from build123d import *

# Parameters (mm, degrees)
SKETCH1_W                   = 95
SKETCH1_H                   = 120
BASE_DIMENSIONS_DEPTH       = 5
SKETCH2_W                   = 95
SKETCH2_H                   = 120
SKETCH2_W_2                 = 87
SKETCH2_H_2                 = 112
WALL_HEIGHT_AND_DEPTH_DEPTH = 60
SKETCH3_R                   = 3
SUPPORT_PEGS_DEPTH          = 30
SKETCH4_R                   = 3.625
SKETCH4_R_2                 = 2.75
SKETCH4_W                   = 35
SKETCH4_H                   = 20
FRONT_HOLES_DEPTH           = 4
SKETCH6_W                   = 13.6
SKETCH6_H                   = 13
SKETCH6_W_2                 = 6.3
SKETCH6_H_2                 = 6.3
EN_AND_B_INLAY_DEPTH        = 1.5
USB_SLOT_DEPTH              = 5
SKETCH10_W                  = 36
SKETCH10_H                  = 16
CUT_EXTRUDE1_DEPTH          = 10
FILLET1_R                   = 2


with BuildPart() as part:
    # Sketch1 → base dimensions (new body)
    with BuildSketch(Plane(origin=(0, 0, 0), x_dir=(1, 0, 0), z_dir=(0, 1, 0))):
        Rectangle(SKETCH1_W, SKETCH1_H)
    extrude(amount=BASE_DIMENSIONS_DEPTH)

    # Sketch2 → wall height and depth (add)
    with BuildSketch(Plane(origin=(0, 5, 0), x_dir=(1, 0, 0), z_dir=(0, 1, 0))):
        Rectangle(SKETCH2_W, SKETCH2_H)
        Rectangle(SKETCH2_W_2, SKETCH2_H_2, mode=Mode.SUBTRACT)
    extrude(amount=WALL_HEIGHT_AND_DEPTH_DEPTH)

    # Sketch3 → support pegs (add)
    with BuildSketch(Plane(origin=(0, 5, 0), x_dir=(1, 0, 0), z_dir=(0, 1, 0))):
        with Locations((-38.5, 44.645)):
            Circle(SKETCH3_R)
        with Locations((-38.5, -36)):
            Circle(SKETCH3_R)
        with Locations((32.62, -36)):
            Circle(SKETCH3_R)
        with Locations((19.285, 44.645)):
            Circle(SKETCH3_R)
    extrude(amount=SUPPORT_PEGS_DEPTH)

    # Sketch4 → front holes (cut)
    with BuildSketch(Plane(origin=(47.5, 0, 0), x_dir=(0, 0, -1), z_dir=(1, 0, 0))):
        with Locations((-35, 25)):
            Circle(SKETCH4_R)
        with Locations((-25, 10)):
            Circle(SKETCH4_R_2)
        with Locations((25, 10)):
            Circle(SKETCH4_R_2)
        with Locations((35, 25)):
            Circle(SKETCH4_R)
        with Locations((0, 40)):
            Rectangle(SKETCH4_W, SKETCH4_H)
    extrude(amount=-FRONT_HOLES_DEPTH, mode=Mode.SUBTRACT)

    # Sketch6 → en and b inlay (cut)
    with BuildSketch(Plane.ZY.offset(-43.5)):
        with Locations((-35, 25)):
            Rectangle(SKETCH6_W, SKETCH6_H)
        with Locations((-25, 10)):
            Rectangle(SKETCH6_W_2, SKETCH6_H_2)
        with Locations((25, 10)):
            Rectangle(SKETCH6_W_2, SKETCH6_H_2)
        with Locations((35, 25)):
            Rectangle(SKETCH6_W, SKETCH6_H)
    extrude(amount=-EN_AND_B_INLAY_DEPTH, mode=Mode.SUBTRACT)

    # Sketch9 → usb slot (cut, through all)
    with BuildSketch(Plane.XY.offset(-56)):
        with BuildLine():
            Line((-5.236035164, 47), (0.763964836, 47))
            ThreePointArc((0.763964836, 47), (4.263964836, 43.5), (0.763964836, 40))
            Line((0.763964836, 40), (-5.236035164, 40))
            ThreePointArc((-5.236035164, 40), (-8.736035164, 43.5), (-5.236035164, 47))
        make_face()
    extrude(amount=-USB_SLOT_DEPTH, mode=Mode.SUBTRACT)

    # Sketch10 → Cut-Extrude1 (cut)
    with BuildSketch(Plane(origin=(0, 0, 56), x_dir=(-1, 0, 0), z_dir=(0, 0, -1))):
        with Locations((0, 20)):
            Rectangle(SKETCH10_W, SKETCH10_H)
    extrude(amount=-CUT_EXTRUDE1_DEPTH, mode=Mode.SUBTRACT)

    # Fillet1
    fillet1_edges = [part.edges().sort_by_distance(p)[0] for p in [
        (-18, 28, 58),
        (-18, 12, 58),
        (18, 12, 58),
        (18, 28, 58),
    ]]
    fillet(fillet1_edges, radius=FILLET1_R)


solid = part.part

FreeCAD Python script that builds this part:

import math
import FreeCAD as App
import Part
import Sketcher


def edges_at(feature, points):
    """Names of the edges that pass closest to the given points."""
    edges = feature.Shape.Edges
    near = lambda p: min(range(len(edges)), key=lambda i: edges[i].distToShape(Part.Vertex(*p))[0])
    return sorted({f"Edge{near(p) + 1}" for p in points})


def add_polygon(sketch, points):
    """Adds a closed chain of lines whose ends are joined by coincident constraints."""
    first, n = sketch.GeometryCount, len(points)
    for a, b in zip(points, points[1:] + points[:1]):
        sketch.addGeometry(Part.LineSegment(App.Vector(*a, 0), App.Vector(*b, 0)), False)
    for i in range(n):
        sketch.addConstraint(Sketcher.Constraint("Coincident", first + i, 2, first + (i + 1) % n, 1))

doc = App.newDocument("Part")
params = doc.addObject("Spreadsheet::Sheet", "Params")
for row, (alias, value) in enumerate([
    ("sketch1_width", "95 mm"),
    ("sketch1_height", "120 mm"),
    ("pad1_length", "5 mm"),
    ("sketch2_width", "95 mm"),
    ("sketch2_width2", "87 mm"),
    ("sketch2_height", "120 mm"),
    ("sketch2_height2", "112 mm"),
    ("pad2_length", "60 mm"),
    ("sketch3_diameter", "6 mm"),
    ("pad3_length", "30 mm"),
    ("sketch4_diameter", "5.5 mm"),
    ("sketch4_diameter2", "7.25 mm"),
    ("sketch4_width", "20 mm"),
    ("sketch4_height", "35 mm"),
    ("pocket1_length", "4 mm"),
    ("sketch5_width", "13 mm"),
    ("sketch5_width2", "6.3 mm"),
    ("sketch5_height", "13.6 mm"),
    ("pocket2_length", "1.5 mm"),
    ("sketch6_radius", "3.5 mm"),
    ("sketch6_width", "6 mm"),
    ("sketch7_width", "36 mm"),
    ("sketch7_height", "16 mm"),
    ("pocket4_length", "10 mm"),
    ("fillet_radius", "2 mm"),
], start=1):
    params.set(f"A{row}", alias)
    params.set(f"B{row}", "=" + value)
    params.setAlias(f"B{row}", alias)

body = doc.addObject("PartDesign::Body", "Body")

# Sketch on XZ plane
sketch1 = body.newObject("Sketcher::SketchObject", "Sketch")
sketch1.AttachmentSupport = (doc.getObject("XZ_Plane"), [""])
sketch1.MapMode = "FlatFace"
add_polygon(sketch1, [(-48, -60), (-48, 60), (48, 60), (48, -60)])  # lines 0-3
sketch1.addConstraint(Sketcher.Constraint("Vertical", 0))
sketch1.addConstraint(Sketcher.Constraint("Horizontal", 1))
sketch1.addConstraint(Sketcher.Constraint("Vertical", 2))
sketch1.addConstraint(Sketcher.Constraint("Horizontal", 3))
sketch1.addConstraint(Sketcher.Constraint("Symmetric", 0, 2, 2, 2, -1, 1))
sketch1.addConstraint(Sketcher.Constraint("DistanceX", 1, 1, 1, 2, 95.0))
sketch1.addConstraint(Sketcher.Constraint("DistanceY", 0, 1, 0, 2, 120.0))
sketch1.setExpression("Constraints[9]", "Params.sketch1_width")
sketch1.setExpression("Constraints[10]", "Params.sketch1_height")
pad1 = body.newObject("PartDesign::Pad", "Pad")
pad1.Profile = sketch1
pad1.setExpression("Length", "Params.pad1_length")
pad1.Reversed = True

# Sketch on XZ plane
sketch2 = body.newObject("Sketcher::SketchObject", "Sketch001")
sketch2.AttachmentSupport = (doc.getObject("XZ_Plane"), [""])
sketch2.MapMode = "FlatFace"
sketch2.AttachmentOffset = App.Placement(App.Vector(0, 0, -5), App.Rotation())
add_polygon(sketch2, [(-48, -60), (-48, 60), (48, 60), (48, -60)])  # lines 0-3
add_polygon(sketch2, [(44, 56), (-44, 56), (-44, -56), (44, -56)])  # lines 4-7
sketch2.addConstraint(Sketcher.Constraint("Vertical", 0))
sketch2.addConstraint(Sketcher.Constraint("Horizontal", 1))
sketch2.addConstraint(Sketcher.Constraint("Vertical", 2))
sketch2.addConstraint(Sketcher.Constraint("Horizontal", 3))
sketch2.addConstraint(Sketcher.Constraint("Horizontal", 4))
sketch2.addConstraint(Sketcher.Constraint("Vertical", 5))
sketch2.addConstraint(Sketcher.Constraint("Horizontal", 6))
sketch2.addConstraint(Sketcher.Constraint("Vertical", 7))
sketch2.addConstraint(Sketcher.Constraint("Symmetric", 0, 2, 2, 2, -1, 1))
sketch2.addConstraint(Sketcher.Constraint("Symmetric", 4, 2, 6, 2, -1, 1))
sketch2.addConstraint(Sketcher.Constraint("DistanceX", 1, 1, 1, 2, 95.0))
sketch2.addConstraint(Sketcher.Constraint("DistanceX", 4, 2, 4, 1, 87.0))
sketch2.addConstraint(Sketcher.Constraint("DistanceY", 0, 1, 0, 2, 120.0))
sketch2.addConstraint(Sketcher.Constraint("DistanceY", 5, 2, 5, 1, 112.0))
sketch2.setExpression("Constraints[18]", "Params.sketch2_width")
sketch2.setExpression("Constraints[19]", "Params.sketch2_width2")
sketch2.setExpression("Constraints[20]", "Params.sketch2_height")
sketch2.setExpression("Constraints[21]", "Params.sketch2_height2")
pad2 = body.newObject("PartDesign::Pad", "Pad001")
pad2.Profile = sketch2
pad2.setExpression("Length", "Params.pad2_length")
pad2.Reversed = True

# Sketch on XZ plane
sketch3 = body.newObject("Sketcher::SketchObject", "Sketch002")
sketch3.AttachmentSupport = (doc.getObject("XZ_Plane"), [""])
sketch3.MapMode = "FlatFace"
sketch3.AttachmentOffset = App.Placement(App.Vector(0, 0, -5), App.Rotation())
sketch3.addGeometry(Part.Circle(App.Vector(-38.5, -44.6, 0), App.Vector(0, 0, 1), 3), False)
sketch3.addGeometry(Part.Circle(App.Vector(-38.5, 36, 0), App.Vector(0, 0, 1), 3), False)
sketch3.addGeometry(Part.Circle(App.Vector(32.6, 36, 0), App.Vector(0, 0, 1), 3), False)
sketch3.addGeometry(Part.Circle(App.Vector(19.3, -44.6, 0), App.Vector(0, 0, 1), 3), False)
sketch3.addConstraint(Sketcher.Constraint("Equal", 0, 1))
sketch3.addConstraint(Sketcher.Constraint("Equal", 1, 2))
sketch3.addConstraint(Sketcher.Constraint("Equal", 2, 3))
sketch3.addConstraint(Sketcher.Constraint("Horizontal", 1, 3, 2, 3))
sketch3.addConstraint(Sketcher.Constraint("Horizontal", 0, 3, 3, 3))
sketch3.addConstraint(Sketcher.Constraint("Vertical", 0, 3, 1, 3))
sketch3.addConstraint(Sketcher.Constraint("Diameter", 0, 6.0))
sketch3.addConstraint(Sketcher.Constraint("DistanceY", -1, 1, 1, 3, 36.0))
sketch3.addConstraint(Sketcher.Constraint("DistanceX", 0, 3, -1, 1, 38.5))
sketch3.addConstraint(Sketcher.Constraint("DistanceX", -1, 1, 2, 3, 32.62))
sketch3.addConstraint(Sketcher.Constraint("DistanceY", 0, 3, -1, 1, 44.645))
sketch3.addConstraint(Sketcher.Constraint("DistanceX", -1, 1, 3, 3, 19.285))
sketch3.setExpression("Constraints[6]", "Params.sketch3_diameter")
pad3 = body.newObject("PartDesign::Pad", "Pad002")
pad3.Profile = sketch3
pad3.setExpression("Length", "Params.pad3_length")
pad3.Reversed = True

# Sketch on YZ plane
sketch4 = body.newObject("Sketcher::SketchObject", "Sketch003")
sketch4.AttachmentSupport = (doc.getObject("YZ_Plane"), [""])
sketch4.MapMode = "FlatFace"
sketch4.AttachmentOffset = App.Placement(App.Vector(0, 0, 47.5), App.Rotation())
sketch4.addGeometry(Part.Circle(App.Vector(25, 35, 0), App.Vector(0, 0, 1), 3.6), False)  # 0
sketch4.addGeometry(Part.Circle(App.Vector(10, 25, 0), App.Vector(0, 0, 1), 2.8), False)  # 1
sketch4.addGeometry(Part.Circle(App.Vector(10, -25, 0), App.Vector(0, 0, 1), 2.8), False)  # 2
sketch4.addGeometry(Part.Circle(App.Vector(25, -35, 0), App.Vector(0, 0, 1), 3.6), False)  # 3
add_polygon(sketch4, [(50, 17.5), (30, 17.5), (30, -17.5), (50, -17.5)])  # lines 4-7
sketch4.addConstraint(Sketcher.Constraint("Horizontal", 4))
sketch4.addConstraint(Sketcher.Constraint("Vertical", 5))
sketch4.addConstraint(Sketcher.Constraint("Horizontal", 6))
sketch4.addConstraint(Sketcher.Constraint("Vertical", 7))
sketch4.addConstraint(Sketcher.Constraint("Equal", 1, 2))
sketch4.addConstraint(Sketcher.Constraint("Equal", 0, 3))
sketch4.addConstraint(Sketcher.Constraint("Symmetric", 1, 3, 2, 3, -1))
sketch4.addConstraint(Sketcher.Constraint("Symmetric", 0, 3, 3, 3, -1))
sketch4.addConstraint(Sketcher.Constraint("Diameter", 1, 5.5))
sketch4.addConstraint(Sketcher.Constraint("Diameter", 0, 7.25))
sketch4.addConstraint(Sketcher.Constraint("DistanceX", 4, 2, 4, 1, 20.0))
sketch4.addConstraint(Sketcher.Constraint("DistanceY", 5, 2, 5, 1, 35.0))
sketch4.addConstraint(Sketcher.Constraint("DistanceX", -1, 1, 0, 3, 25.0))
sketch4.addConstraint(Sketcher.Constraint("DistanceY", -1, 1, 0, 3, 35.0))
sketch4.addConstraint(Sketcher.Constraint("DistanceX", -1, 1, 1, 3, 10.0))
sketch4.addConstraint(Sketcher.Constraint("DistanceY", -1, 1, 1, 3, 25.0))
sketch4.addConstraint(Sketcher.Constraint("DistanceX", -1, 1, 4, 2, 30.0))
sketch4.addConstraint(Sketcher.Constraint("DistanceY", -1, 1, 4, 2, 17.5))
sketch4.setExpression("Constraints[12]", "Params.sketch4_diameter")
sketch4.setExpression("Constraints[13]", "Params.sketch4_diameter2")
sketch4.setExpression("Constraints[14]", "Params.sketch4_width")
sketch4.setExpression("Constraints[15]", "Params.sketch4_height")
pocket1 = body.newObject("PartDesign::Pocket", "Pocket")
pocket1.Profile = sketch4
pocket1.setExpression("Length", "Params.pocket1_length")

# Sketch on YZ plane
sketch5 = body.newObject("Sketcher::SketchObject", "Sketch004")
sketch5.AttachmentSupport = (doc.getObject("YZ_Plane"), [""])
sketch5.MapMode = "FlatFace"
sketch5.AttachmentOffset = App.Placement(App.Vector(0, 0, 43.5), App.Rotation())
add_polygon(sketch5, [(32, -42), (18, -42), (18, -28), (32, -28)])  # lines 0-3
add_polygon(sketch5, [(13, -28), (7, -28), (7, -22), (13, -22)])  # lines 4-7
add_polygon(sketch5, [(13, 22), (7, 22), (7, 28), (13, 28)])  # lines 8-11
add_polygon(sketch5, [(32, 28), (18, 28), (18, 42), (32, 42)])  # lines 12-15
sketch5.addConstraint(Sketcher.Constraint("Horizontal", 0))
sketch5.addConstraint(Sketcher.Constraint("Vertical", 1))
sketch5.addConstraint(Sketcher.Constraint("Horizontal", 2))
sketch5.addConstraint(Sketcher.Constraint("Vertical", 3))
sketch5.addConstraint(Sketcher.Constraint("Horizontal", 4))
sketch5.addConstraint(Sketcher.Constraint("Vertical", 5))
sketch5.addConstraint(Sketcher.Constraint("Horizontal", 6))
sketch5.addConstraint(Sketcher.Constraint("Vertical", 7))
sketch5.addConstraint(Sketcher.Constraint("Horizontal", 8))
sketch5.addConstraint(Sketcher.Constraint("Vertical", 9))
sketch5.addConstraint(Sketcher.Constraint("Horizontal", 10))
sketch5.addConstraint(Sketcher.Constraint("Vertical", 11))
sketch5.addConstraint(Sketcher.Constraint("Horizontal", 12))
sketch5.addConstraint(Sketcher.Constraint("Vertical", 13))
sketch5.addConstraint(Sketcher.Constraint("Horizontal", 14))
sketch5.addConstraint(Sketcher.Constraint("Vertical", 15))
sketch5.addConstraint(Sketcher.Constraint("Symmetric", 5, 2, 8, 2, -1))
sketch5.addConstraint(Sketcher.Constraint("Symmetric", 7, 2, 10, 2, -1))
sketch5.addConstraint(Sketcher.Constraint("Symmetric", 1, 2, 12, 2, -1))
sketch5.addConstraint(Sketcher.Constraint("Symmetric", 3, 2, 14, 2, -1))
sketch5.addConstraint(Sketcher.Constraint("Equal", 10, 5))
sketch5.addConstraint(Sketcher.Constraint("DistanceX", 0, 2, 0, 1, 13.0))
sketch5.addConstraint(Sketcher.Constraint("DistanceX", 4, 2, 4, 1, 6.3))
sketch5.addConstraint(Sketcher.Constraint("DistanceY", 1, 1, 1, 2, 13.6))
sketch5.addConstraint(Sketcher.Constraint("DistanceY", 4, 2, 8, 2, 50.0))
sketch5.addConstraint(Sketcher.Constraint("DistanceX", -1, 1, 0, 2, 18.5))
sketch5.addConstraint(Sketcher.Constraint("DistanceY", 0, 2, -1, 1, 41.8))
sketch5.addConstraint(Sketcher.Constraint("DistanceX", -1, 1, 4, 2, 6.85))
sketch5.setExpression("Constraints[37]", "Params.sketch5_width")
sketch5.setExpression("Constraints[38]", "Params.sketch5_width2")
sketch5.setExpression("Constraints[39]", "Params.sketch5_height")
pocket2 = body.newObject("PartDesign::Pocket", "Pocket001")
pocket2.Profile = sketch5
pocket2.setExpression("Length", "Params.pocket2_length")
pocket2.Reversed = True

# Sketch on XY plane
sketch6 = body.newObject("Sketcher::SketchObject", "Sketch005")
sketch6.AttachmentSupport = (doc.getObject("XY_Plane"), [""])
sketch6.MapMode = "FlatFace"
sketch6.AttachmentOffset = App.Placement(App.Vector(0, 0, -56), App.Rotation())
sketch6.addGeometry(Part.LineSegment(App.Vector(0.8, 47, 0), App.Vector(-5.2, 47, 0)), False)
sketch6.addGeometry(Part.ArcOfCircle(Part.Circle(App.Vector(-5.2, 43.5, 0), App.Vector(0, 0, 1), 3.5), math.radians(90), math.radians(270)), False)
sketch6.addGeometry(Part.LineSegment(App.Vector(-5.2, 40, 0), App.Vector(0.8, 40, 0)), False)
sketch6.addGeometry(Part.ArcOfCircle(Part.Circle(App.Vector(0.8, 43.5, 0), App.Vector(0, 0, 1), 3.5), math.radians(-90), math.radians(90)), False)
sketch6.addConstraint(Sketcher.Constraint("Tangent", 0, 2, 1, 1))
sketch6.addConstraint(Sketcher.Constraint("Tangent", 1, 2, 2, 1))
sketch6.addConstraint(Sketcher.Constraint("Tangent", 2, 2, 3, 1))
sketch6.addConstraint(Sketcher.Constraint("Tangent", 3, 2, 0, 1))
sketch6.addConstraint(Sketcher.Constraint("Horizontal", 0))
sketch6.addConstraint(Sketcher.Constraint("Horizontal", 2))
sketch6.addConstraint(Sketcher.Constraint("Radius", 1, 3.5))
sketch6.addConstraint(Sketcher.Constraint("DistanceX", 0, 2, 0, 1, 6.0))
sketch6.addConstraint(Sketcher.Constraint("DistanceY", -1, 1, 0, 2, 47.0))
sketch6.addConstraint(Sketcher.Constraint("DistanceX", 1, 3, -1, 1, 5.236035))
sketch6.setExpression("Constraints[6]", "Params.sketch6_radius")
sketch6.setExpression("Constraints[7]", "Params.sketch6_width")
pocket3 = body.newObject("PartDesign::Pocket", "Pocket002")
pocket3.Profile = sketch6
pocket3.Type = "ThroughAll"

# Sketch on XY plane
sketch7 = body.newObject("Sketcher::SketchObject", "Sketch006")
sketch7.AttachmentSupport = (doc.getObject("XY_Plane"), [""])
sketch7.MapMode = "FlatFace"
sketch7.AttachmentOffset = App.Placement(App.Vector(0, 0, 56), App.Rotation())
add_polygon(sketch7, [(18, 28), (18, 12), (-18, 12), (-18, 28)])  # lines 0-3
sketch7.addConstraint(Sketcher.Constraint("Vertical", 0))
sketch7.addConstraint(Sketcher.Constraint("Horizontal", 1))
sketch7.addConstraint(Sketcher.Constraint("Vertical", 2))
sketch7.addConstraint(Sketcher.Constraint("Horizontal", 3))
sketch7.addConstraint(Sketcher.Constraint("DistanceX", 1, 2, 1, 1, 36.0))
sketch7.addConstraint(Sketcher.Constraint("DistanceY", 0, 2, 0, 1, 16.0))
sketch7.addConstraint(Sketcher.Constraint("DistanceX", -1, 1, 0, 2, 18.0))
sketch7.addConstraint(Sketcher.Constraint("DistanceY", -1, 1, 0, 2, 12.0))
sketch7.setExpression("Constraints[8]", "Params.sketch7_width")
sketch7.setExpression("Constraints[9]", "Params.sketch7_height")
pocket4 = body.newObject("PartDesign::Pocket", "Pocket003")
pocket4.Profile = sketch7
pocket4.setExpression("Length", "Params.pocket4_length")
pocket4.Reversed = True
doc.recompute()

fillet = body.newObject("PartDesign::Fillet", "Fillet")
fillet.Base = (pocket4, edges_at(pocket4, [
    (-18, 28, 58),
    (-18, 12, 58),
    (18, 12, 58),
    (18, 28, 58),
]))
fillet.setExpression("Radius", "Params.fillet_radius")

doc.recompute()
